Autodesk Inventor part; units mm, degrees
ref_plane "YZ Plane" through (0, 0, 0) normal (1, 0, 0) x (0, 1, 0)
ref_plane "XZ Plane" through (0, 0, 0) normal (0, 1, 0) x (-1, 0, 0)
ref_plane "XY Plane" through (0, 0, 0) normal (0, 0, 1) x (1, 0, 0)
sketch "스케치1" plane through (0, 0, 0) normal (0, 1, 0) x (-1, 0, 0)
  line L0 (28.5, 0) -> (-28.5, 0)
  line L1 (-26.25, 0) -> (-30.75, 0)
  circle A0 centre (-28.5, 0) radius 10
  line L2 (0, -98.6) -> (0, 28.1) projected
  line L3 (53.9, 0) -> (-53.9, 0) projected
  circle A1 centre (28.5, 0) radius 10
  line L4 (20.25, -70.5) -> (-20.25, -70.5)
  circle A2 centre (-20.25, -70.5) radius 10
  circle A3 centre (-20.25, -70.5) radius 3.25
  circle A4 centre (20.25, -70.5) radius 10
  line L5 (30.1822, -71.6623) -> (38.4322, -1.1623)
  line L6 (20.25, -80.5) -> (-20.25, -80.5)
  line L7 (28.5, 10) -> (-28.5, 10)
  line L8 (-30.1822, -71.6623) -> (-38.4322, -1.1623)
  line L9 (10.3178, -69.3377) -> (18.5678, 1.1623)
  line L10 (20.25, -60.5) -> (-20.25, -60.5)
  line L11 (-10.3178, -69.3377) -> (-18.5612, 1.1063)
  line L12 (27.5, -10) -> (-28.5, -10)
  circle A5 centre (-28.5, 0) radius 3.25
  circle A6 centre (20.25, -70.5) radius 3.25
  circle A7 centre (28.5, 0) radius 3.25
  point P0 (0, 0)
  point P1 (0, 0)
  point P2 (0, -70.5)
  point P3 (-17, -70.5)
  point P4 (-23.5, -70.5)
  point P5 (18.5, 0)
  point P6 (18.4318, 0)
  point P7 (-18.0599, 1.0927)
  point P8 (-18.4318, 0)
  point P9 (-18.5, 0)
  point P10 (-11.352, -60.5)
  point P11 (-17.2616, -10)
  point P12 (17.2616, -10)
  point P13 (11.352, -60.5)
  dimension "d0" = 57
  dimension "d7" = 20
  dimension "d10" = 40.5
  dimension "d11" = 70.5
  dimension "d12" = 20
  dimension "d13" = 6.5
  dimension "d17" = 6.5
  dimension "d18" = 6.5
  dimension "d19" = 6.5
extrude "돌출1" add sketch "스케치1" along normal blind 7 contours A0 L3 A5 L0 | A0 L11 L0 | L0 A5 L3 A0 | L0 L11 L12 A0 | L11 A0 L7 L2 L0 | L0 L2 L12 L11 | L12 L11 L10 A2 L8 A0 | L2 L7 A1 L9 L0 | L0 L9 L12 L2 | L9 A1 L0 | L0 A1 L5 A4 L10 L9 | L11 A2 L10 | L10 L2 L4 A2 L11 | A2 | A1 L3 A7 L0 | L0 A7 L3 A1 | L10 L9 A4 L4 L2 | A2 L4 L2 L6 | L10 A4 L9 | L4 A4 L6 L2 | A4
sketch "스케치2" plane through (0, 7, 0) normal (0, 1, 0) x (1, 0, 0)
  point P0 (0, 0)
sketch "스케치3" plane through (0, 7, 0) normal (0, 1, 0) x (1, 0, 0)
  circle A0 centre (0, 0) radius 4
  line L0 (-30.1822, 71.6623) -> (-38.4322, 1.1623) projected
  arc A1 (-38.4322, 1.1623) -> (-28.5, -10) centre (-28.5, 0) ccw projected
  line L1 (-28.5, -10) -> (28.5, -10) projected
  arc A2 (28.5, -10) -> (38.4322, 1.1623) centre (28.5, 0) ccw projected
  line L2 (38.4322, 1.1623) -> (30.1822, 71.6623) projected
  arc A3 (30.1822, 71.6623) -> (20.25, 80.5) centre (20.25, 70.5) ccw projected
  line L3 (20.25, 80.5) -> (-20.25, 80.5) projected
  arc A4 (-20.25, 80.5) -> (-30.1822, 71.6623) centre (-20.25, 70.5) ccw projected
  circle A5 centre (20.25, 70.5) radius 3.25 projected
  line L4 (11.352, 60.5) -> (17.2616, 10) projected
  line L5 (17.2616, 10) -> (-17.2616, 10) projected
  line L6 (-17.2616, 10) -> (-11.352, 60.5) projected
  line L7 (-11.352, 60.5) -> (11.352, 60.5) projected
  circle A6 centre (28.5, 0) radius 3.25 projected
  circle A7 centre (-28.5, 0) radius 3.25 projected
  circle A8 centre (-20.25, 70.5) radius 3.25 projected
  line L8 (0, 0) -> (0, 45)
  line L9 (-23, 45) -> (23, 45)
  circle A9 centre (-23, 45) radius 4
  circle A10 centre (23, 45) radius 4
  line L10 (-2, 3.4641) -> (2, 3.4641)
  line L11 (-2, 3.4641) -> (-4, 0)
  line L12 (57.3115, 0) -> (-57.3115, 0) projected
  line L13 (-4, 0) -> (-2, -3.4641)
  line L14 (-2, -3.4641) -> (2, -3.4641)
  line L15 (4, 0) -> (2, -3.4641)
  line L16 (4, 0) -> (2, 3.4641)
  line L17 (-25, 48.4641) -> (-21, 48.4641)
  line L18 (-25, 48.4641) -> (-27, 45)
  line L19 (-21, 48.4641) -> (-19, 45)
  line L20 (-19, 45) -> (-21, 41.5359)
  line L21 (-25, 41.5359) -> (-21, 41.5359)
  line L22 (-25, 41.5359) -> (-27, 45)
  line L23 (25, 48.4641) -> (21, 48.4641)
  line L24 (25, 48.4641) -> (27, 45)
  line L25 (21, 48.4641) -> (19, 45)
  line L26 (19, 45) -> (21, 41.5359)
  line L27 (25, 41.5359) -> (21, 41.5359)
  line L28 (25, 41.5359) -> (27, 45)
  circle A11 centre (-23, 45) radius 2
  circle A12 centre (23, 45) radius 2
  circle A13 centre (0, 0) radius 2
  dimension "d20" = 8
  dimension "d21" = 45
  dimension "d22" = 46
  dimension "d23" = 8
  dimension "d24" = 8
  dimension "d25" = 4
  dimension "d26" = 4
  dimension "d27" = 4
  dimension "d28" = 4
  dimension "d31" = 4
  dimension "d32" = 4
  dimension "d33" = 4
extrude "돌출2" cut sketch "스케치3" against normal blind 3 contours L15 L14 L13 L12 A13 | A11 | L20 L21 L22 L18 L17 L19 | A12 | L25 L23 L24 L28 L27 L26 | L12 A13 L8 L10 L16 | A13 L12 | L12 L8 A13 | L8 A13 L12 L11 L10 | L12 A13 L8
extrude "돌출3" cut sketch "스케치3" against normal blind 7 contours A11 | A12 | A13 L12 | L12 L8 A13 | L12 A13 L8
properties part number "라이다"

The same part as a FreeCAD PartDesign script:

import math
import FreeCAD as App
import Part
import Sketcher

doc = App.newDocument("Part")
body = doc.addObject("PartDesign::Body", "Body")

sketch1 = doc.addObject("Sketcher::SketchObject", "Sketch")
body.addObject(sketch1)
sketch1.AttachmentSupport = (doc.XZ_Plane, [""])
sketch1.MapMode = "FlatFace"
sketch1.addGeometry([
    Part.LineSegment(App.Vector(38.4, -1.2, 0), App.Vector(30.2, -71.7, 0)),
    Part.ArcOfCircle(Part.Circle(App.Vector(20.2, -70.5, 0), App.Vector(0, 0, 1), 10), math.radians(-90), math.radians(-7)),
    Part.LineSegment(App.Vector(20.2, -80.5, 0), App.Vector(-20.2, -80.5, 0)),
    Part.ArcOfCircle(Part.Circle(App.Vector(-20.2, -70.5, 0), App.Vector(0, 0, 1), 10), math.radians(-173), math.radians(-90)),
    Part.LineSegment(App.Vector(-30.2, -71.7, 0), App.Vector(-38.4, -1.2, 0)),
    Part.ArcOfCircle(Part.Circle(App.Vector(-28.5, 0, 0), App.Vector(0, 0, 1), 10), math.radians(90), math.radians(187)),
    Part.LineSegment(App.Vector(-28.5, 10, 0), App.Vector(28.5, 10, 0)),
    Part.ArcOfCircle(Part.Circle(App.Vector(28.5, 0, 0), App.Vector(0, 0, 1), 10), math.radians(-7), math.radians(90)),
    Part.Circle(App.Vector(28.5, 0, 0), App.Vector(0, 0, 1), 3.2),
    Part.LineSegment(App.Vector(11.4, -60.5, 0), App.Vector(17.3, -10, 0)),
    Part.LineSegment(App.Vector(17.3, -10, 0), App.Vector(-17.3, -10, 0)),
    Part.LineSegment(App.Vector(-17.3, -10, 0), App.Vector(-11.4, -60.5, 0)),
    Part.LineSegment(App.Vector(-11.4, -60.5, 0), App.Vector(11.4, -60.5, 0)),
    Part.Circle(App.Vector(20.2, -70.5, 0), App.Vector(0, 0, 1), 3.2),
    Part.Circle(App.Vector(-28.5, 0, 0), App.Vector(0, 0, 1), 3.2),
    Part.Circle(App.Vector(-20.2, -70.5, 0), App.Vector(0, 0, 1), 3.2),
], False)
sketch1.addConstraint([
    Sketcher.Constraint("Tangent", 0, 2, 1, 2),
    Sketcher.Constraint("Tangent", 1, 1, 2, 1),
    Sketcher.Constraint("Tangent", 2, 2, 3, 2),
    Sketcher.Constraint("Tangent", 3, 1, 4, 1),
    Sketcher.Constraint("Tangent", 4, 2, 5, 2),
    Sketcher.Constraint("Tangent", 5, 1, 6, 1),
    Sketcher.Constraint("Tangent", 6, 2, 7, 2),
    Sketcher.Constraint("Tangent", 7, 1, 0, 1),
    Sketcher.Constraint("Coincident", 9, 2, 10, 1),
    Sketcher.Constraint("Coincident", 10, 2, 11, 1),
    Sketcher.Constraint("Coincident", 11, 2, 12, 1),
    Sketcher.Constraint("Coincident", 12, 2, 9, 1),
    Sketcher.Constraint("Horizontal", 2),
    Sketcher.Constraint("Horizontal", 6),
    Sketcher.Constraint("Horizontal", 10),
    Sketcher.Constraint("Horizontal", 12),
    Sketcher.Constraint("Coincident", 8, 3, 7, 3),
    Sketcher.Constraint("Coincident", 13, 3, 1, 3),
    Sketcher.Constraint("Coincident", 14, 3, 5, 3),
    Sketcher.Constraint("Coincident", 15, 3, 3, 3),
    Sketcher.Constraint("Equal", 1, 3),
    Sketcher.Constraint("Equal", 3, 5),
    Sketcher.Constraint("Equal", 5, 7),
    Sketcher.Constraint("Equal", 8, 13),
    Sketcher.Constraint("Equal", 13, 14),
    Sketcher.Constraint("Equal", 14, 15),
    Sketcher.Constraint("Symmetric", 5, 3, 7, 3, -1, 1),
    Sketcher.Constraint("Parallel", 0, 9),
    Sketcher.Constraint("Parallel", 4, 11),
    Sketcher.Constraint("Horizontal", 0, 2, 3, 1),
    Sketcher.Constraint("Radius", 1, 10.0),
    Sketcher.Constraint("Diameter", 8, 6.5),
    Sketcher.Constraint("DistanceX", 6, 1, 6, 2, 57.0),
    Sketcher.Constraint("DistanceX", 2, 2, 2, 1, 40.5),
    Sketcher.Constraint("DistanceY", 9, 2, 6, 2, 20.0),
    Sketcher.Constraint("DistanceY", 2, 2, 11, 2, 20.0),
    Sketcher.Constraint("DistanceY", 1, 3, -1, 1, 70.5),
    Sketcher.Constraint("DistanceX", 10, 2, 10, 1, 34.523),
    Sketcher.Constraint("DistanceX", 11, 2, -1, 1, 11.352),
])
pad1 = doc.addObject("PartDesign::Pad", "Pad")
body.addObject(pad1)
pad1.Profile = sketch1
pad1.Length = 7
pad1.Reversed = True

sketch2 = doc.addObject("Sketcher::SketchObject", "Sketch001")
body.addObject(sketch2)
sketch2.AttachmentSupport = (doc.XZ_Plane, [""])
sketch2.MapMode = "FlatFace"
sketch2.AttachmentOffset = App.Placement(App.Vector(0, 0, -7), App.Rotation())
sketch2.addGeometry([
    Part.LineSegment(App.Vector(2, 3.5, 0), App.Vector(4, 0, 0)),
    Part.LineSegment(App.Vector(4, 0, 0), App.Vector(2, -3.5, 0)),
    Part.LineSegment(App.Vector(2, -3.5, 0), App.Vector(-2, -3.5, 0)),
    Part.LineSegment(App.Vector(-2, -3.5, 0), App.Vector(-4, 0, 0)),
    Part.LineSegment(App.Vector(-4, 0, 0), App.Vector(-2, 3.5, 0)),
    Part.LineSegment(App.Vector(-2, 3.5, 0), App.Vector(2, 3.5, 0)),
    Part.LineSegment(App.Vector(-21, -41.5, 0), App.Vector(-19, -45, 0)),
    Part.LineSegment(App.Vector(-19, -45, 0), App.Vector(-21, -48.5, 0)),
    Part.LineSegment(App.Vector(-21, -48.5, 0), App.Vector(-25, -48.5, 0)),
    Part.LineSegment(App.Vector(-25, -48.5, 0), App.Vector(-27, -45, 0)),
    Part.LineSegment(App.Vector(-27, -45, 0), App.Vector(-25, -41.5, 0)),
    Part.LineSegment(App.Vector(-25, -41.5, 0), App.Vector(-21, -41.5, 0)),
    Part.LineSegment(App.Vector(21, -48.5, 0), App.Vector(19, -45, 0)),
    Part.LineSegment(App.Vector(19, -45, 0), App.Vector(21, -41.5, 0)),
    Part.LineSegment(App.Vector(21, -41.5, 0), App.Vector(25, -41.5, 0)),
    Part.LineSegment(App.Vector(25, -41.5, 0), App.Vector(27, -45, 0)),
    Part.LineSegment(App.Vector(27, -45, 0), App.Vector(25, -48.5, 0)),
    Part.LineSegment(App.Vector(25, -48.5, 0), App.Vector(21, -48.5, 0)),
], False)
sketch2.addConstraint([
    Sketcher.Constraint("Coincident", 0, 2, 1, 1),
    Sketcher.Constraint("Coincident", 1, 2, 2, 1),
    Sketcher.Constraint("Coincident", 2, 2, 3, 1),
    Sketcher.Constraint("Coincident", 3, 2, 4, 1),
    Sketcher.Constraint("Coincident", 4, 2, 5, 1),
    Sketcher.Constraint("Coincident", 5, 2, 0, 1),
    Sketcher.Constraint("Coincident", 6, 2, 7, 1),
    Sketcher.Constraint("Coincident", 7, 2, 8, 1),
    Sketcher.Constraint("Coincident", 8, 2, 9, 1),
    Sketcher.Constraint("Coincident", 9, 2, 10, 1),
    Sketcher.Constraint("Coincident", 10, 2, 11, 1),
    Sketcher.Constraint("Coincident", 11, 2, 6, 1),
    Sketcher.Constraint("Coincident", 12, 2, 13, 1),
    Sketcher.Constraint("Coincident", 13, 2, 14, 1),
    Sketcher.Constraint("Coincident", 14, 2, 15, 1),
    Sketcher.Constraint("Coincident", 15, 2, 16, 1),
    Sketcher.Constraint("Coincident", 16, 2, 17, 1),
    Sketcher.Constraint("Coincident", 17, 2, 12, 1),
    Sketcher.Constraint("Horizontal", 2),
    Sketcher.Constraint("Horizontal", 5),
    Sketcher.Constraint("Horizontal", 8),
    Sketcher.Constraint("Horizontal", 11),
    Sketcher.Constraint("Horizontal", 14),
    Sketcher.Constraint("Horizontal", 17),
    Sketcher.Constraint("Symmetric", 0, 2, 3, 2, -1, 1),
    Sketcher.Constraint("Symmetric", 1, 2, 4, 2, -1, 1),
    Sketcher.Constraint("Symmetric", 6, 2, 12, 2, -2),
    Sketcher.Constraint("Symmetric", 11, 2, 13, 2, -2),
    Sketcher.Constraint("Symmetric", 9, 2, 15, 2, -2),
    Sketcher.Constraint("Symmetric", 8, 2, 16, 2, -2),
    Sketcher.Constraint("PointOnObject", 0, 2, -1),
    Sketcher.Constraint("Parallel", 0, 3),
    Sketcher.Constraint("Parallel", 3, 6),
    Sketcher.Constraint("Parallel", 4, 7),
    Sketcher.Constraint("Parallel", 6, 9),
    Sketcher.Constraint("Parallel", 7, 10),
    Sketcher.Constraint("Parallel", 9, 12),
    Sketcher.Constraint("Parallel", 10, 13),
    Sketcher.Constraint("Parallel", 12, 15),
    Sketcher.Constraint("Horizontal", 6, 2, 9, 2),
    Sketcher.Constraint("Vertical", 8, 2, 10, 2),
    Sketcher.Constraint("Equal", 5, 8),
    Sketcher.Constraint("Equal", 4, 6),
    Sketcher.Constraint("DistanceX", 2, 2, 2, 1, 4.0),
    Sketcher.Constraint("Distance", 0, 4.0),
    Sketcher.Constraint("DistanceX", -1, 1, 0, 2, 4.0),
    Sketcher.Constraint("DistanceY", 6, 2, -1, 1, 45.0),
    Sketcher.Constraint("DistanceX", 11, 2, 14, 2, 46.0),
])
pocket1 = doc.addObject("PartDesign::Pocket", "Pocket")
body.addObject(pocket1)
pocket1.Profile = sketch2
pocket1.Length = 3
pocket1.Reversed = True

sketch3 = doc.addObject("Sketcher::SketchObject", "Sketch002")
body.addObject(sketch3)
sketch3.AttachmentSupport = (doc.XZ_Plane, [""])
sketch3.MapMode = "FlatFace"
sketch3.AttachmentOffset = App.Placement(App.Vector(0, 0, -7), App.Rotation())
sketch3.addGeometry([
    Part.Circle(App.Vector(-23, -45, 0), App.Vector(0, 0, 1), 2),
    Part.Circle(App.Vector(23, -45, 0), App.Vector(0, 0, 1), 2),
    Part.Circle(App.Vector(0, 0, 0), App.Vector(0, 0, 1), 2),
], False)
sketch3.addConstraint([
    Sketcher.Constraint("Coincident", 2, 3, -1, 1),
    Sketcher.Constraint("Equal", 0, 1),
    Sketcher.Constraint("Equal", 1, 2),
    Sketcher.Constraint("Symmetric", 0, 3, 1, 3, -2),
    Sketcher.Constraint("Diameter", 0, 4.0),
    Sketcher.Constraint("DistanceY", 0, 3, -1, 1, 45.0),
    Sketcher.Constraint("DistanceX", 0, 3, 1, 3, 46.0),
])
pocket2 = doc.addObject("PartDesign::Pocket", "Pocket001")
body.addObject(pocket2)
pocket2.Profile = sketch3
pocket2.Length = 7
pocket2.Reversed = True

doc.recompute()
